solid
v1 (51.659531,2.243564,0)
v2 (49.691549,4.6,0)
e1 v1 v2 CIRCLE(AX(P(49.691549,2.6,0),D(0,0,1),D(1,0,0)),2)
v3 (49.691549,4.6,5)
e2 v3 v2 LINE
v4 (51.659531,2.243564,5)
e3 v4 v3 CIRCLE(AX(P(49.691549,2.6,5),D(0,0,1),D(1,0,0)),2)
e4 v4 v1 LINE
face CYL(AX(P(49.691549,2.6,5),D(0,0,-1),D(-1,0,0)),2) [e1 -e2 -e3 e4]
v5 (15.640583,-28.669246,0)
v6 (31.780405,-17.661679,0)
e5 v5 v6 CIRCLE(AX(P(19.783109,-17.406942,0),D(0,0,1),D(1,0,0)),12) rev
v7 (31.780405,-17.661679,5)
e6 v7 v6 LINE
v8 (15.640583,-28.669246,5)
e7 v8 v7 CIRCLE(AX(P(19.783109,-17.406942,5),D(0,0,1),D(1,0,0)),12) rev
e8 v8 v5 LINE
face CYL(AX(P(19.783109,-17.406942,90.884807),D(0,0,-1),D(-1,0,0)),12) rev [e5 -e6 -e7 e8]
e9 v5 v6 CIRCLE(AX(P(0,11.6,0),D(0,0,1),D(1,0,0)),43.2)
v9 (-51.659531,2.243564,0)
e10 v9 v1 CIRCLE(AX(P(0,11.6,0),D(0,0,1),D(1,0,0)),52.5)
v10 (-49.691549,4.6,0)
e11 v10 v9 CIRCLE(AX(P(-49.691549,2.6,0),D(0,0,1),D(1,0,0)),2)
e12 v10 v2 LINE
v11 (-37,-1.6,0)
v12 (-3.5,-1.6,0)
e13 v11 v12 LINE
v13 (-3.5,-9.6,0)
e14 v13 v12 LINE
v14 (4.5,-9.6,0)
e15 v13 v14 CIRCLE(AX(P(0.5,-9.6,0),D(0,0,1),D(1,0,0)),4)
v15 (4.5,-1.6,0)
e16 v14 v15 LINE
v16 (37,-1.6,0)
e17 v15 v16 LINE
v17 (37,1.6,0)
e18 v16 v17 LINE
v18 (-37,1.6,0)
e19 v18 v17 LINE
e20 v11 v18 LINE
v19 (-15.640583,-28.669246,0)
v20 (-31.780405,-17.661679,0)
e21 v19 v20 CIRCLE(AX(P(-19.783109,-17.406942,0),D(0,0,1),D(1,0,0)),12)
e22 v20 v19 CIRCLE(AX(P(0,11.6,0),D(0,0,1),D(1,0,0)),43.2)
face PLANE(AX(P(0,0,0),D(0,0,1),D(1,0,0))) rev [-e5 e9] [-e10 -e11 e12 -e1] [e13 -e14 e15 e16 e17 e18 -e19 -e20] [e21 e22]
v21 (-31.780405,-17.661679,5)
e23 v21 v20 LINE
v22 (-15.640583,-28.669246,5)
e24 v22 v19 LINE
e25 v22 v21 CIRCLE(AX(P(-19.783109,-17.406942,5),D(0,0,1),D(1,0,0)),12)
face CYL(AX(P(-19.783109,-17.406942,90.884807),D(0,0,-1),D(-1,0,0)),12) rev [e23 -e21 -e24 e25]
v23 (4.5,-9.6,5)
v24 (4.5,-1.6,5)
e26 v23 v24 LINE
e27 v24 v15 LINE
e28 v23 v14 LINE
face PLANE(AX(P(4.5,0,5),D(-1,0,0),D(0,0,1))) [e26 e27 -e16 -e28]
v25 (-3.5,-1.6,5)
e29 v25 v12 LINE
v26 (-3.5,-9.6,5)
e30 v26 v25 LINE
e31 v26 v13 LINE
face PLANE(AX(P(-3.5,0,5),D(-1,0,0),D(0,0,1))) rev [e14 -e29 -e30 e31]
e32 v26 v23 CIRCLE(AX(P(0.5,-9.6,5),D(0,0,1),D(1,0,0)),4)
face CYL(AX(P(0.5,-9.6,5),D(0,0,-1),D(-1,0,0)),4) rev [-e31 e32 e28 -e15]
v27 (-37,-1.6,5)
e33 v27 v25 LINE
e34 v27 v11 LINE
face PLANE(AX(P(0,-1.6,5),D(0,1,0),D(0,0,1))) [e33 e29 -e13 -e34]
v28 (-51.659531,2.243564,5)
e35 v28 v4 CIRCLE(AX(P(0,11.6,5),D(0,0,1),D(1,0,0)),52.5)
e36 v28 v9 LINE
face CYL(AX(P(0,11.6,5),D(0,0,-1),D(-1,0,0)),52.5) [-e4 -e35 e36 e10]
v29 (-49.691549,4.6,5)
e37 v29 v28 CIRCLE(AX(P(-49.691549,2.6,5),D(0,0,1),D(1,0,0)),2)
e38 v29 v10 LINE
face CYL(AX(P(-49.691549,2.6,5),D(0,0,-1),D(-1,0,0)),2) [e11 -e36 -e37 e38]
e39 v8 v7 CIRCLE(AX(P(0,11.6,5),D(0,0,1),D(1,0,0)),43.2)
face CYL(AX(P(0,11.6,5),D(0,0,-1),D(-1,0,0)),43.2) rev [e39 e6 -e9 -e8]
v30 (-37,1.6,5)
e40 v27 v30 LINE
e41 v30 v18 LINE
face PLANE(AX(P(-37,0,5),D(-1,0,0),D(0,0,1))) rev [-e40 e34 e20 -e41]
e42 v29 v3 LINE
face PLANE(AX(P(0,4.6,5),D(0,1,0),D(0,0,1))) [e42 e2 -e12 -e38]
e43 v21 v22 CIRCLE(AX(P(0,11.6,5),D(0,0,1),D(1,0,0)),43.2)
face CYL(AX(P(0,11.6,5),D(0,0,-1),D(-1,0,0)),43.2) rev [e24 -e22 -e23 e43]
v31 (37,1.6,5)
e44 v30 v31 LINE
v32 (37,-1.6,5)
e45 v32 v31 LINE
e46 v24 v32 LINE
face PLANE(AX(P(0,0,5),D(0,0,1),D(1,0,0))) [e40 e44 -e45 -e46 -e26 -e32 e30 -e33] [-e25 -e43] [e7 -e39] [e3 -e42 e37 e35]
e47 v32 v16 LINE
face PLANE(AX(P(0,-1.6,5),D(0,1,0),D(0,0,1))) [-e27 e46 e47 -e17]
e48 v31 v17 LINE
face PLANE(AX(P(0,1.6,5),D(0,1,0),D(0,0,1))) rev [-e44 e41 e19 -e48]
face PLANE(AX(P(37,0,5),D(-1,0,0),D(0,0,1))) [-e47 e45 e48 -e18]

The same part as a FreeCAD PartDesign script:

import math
import FreeCAD as App
import Part
import Sketcher
Q = App.Units.Quantity

doc = App.newDocument("Part")
params = doc.addObject("Spreadsheet::Sheet", "Params")
for row, (alias, value) in enumerate([
    ("sketch1_radius", "2 mm"),
    ("sketch1_radius2", "6 mm"),
    ("sketch1_radius3", "4 mm"),
    ("sketch1_radius4", "52.5 mm"),
    ("sketch1_radius5", "43.2 mm"),
    ("pad1_length", "5 mm"),
    ("sketch2_radius", "6 mm"),
    ("sketch2_radius2", "12 mm"),
    ("sketch2_radius3", "43.2 mm"),
    ("sketch2_height", "5 mm"),
    ("pad2_length", "5 mm"),
], start=1):
    params.set(f"A{row}", alias)
    params.set(f"B{row}", "=" + value)
    params.setAlias(f"B{row}", alias)

body = doc.addObject("PartDesign::Body", "Body")

# Sketch on XY plane
sketch1 = body.newObject("Sketcher::SketchObject", "Sketch")
sketch1.AttachmentSupport = (doc.getObject("XY_Plane"), [""])
sketch1.MapMode = "FlatFace"
sketch1.addGeometry(Part.ArcOfCircle(Part.Circle(App.Vector(0, 11.6, 0), App.Vector(0, 0, 1), 52.5), math.radians(-170), math.radians(-10)), False)
sketch1.addGeometry(Part.ArcOfCircle(Part.Circle(App.Vector(49.7, 2.6, 0), App.Vector(0, 0, 1), 2), math.radians(-10), math.radians(90)), False)
sketch1.addGeometry(Part.LineSegment(App.Vector(49.7, 4.6, 0), App.Vector(-49.7, 4.6, 0)), False)
sketch1.addGeometry(Part.ArcOfCircle(Part.Circle(App.Vector(-49.7, 2.6, 0), App.Vector(0, 0, 1), 2), math.radians(90), math.radians(190)), False)
sketch1.addGeometry(Part.LineSegment(App.Vector(-3.5, -14.1, 0), App.Vector(-3.5, -31.5, 0)), False)
sketch1.addGeometry(Part.ArcOfCircle(Part.Circle(App.Vector(0, 11.6, 0), App.Vector(0, 0, 1), 43.2), math.radians(-158), math.radians(-95)), False)
sketch1.addGeometry(Part.LineSegment(App.Vector(-40, -4.6, 0), App.Vector(-5.5, -4.6, 0)), False)
sketch1.addGeometry(Part.LineSegment(App.Vector(-5.5, -4.6, 0), App.Vector(-5.5, -9.6, 0)), False)
sketch1.addGeometry(Part.ArcOfCircle(Part.Circle(App.Vector(0.5, -9.6, 0), App.Vector(0, 0, 1), 6), math.radians(180), math.radians(228)), False)
sketch1.addGeometry(Part.LineSegment(App.Vector(6.5, -4.6, 0), App.Vector(40, -4.6, 0)), False)
sketch1.addGeometry(Part.ArcOfCircle(Part.Circle(App.Vector(0, 11.6, 0), App.Vector(0, 0, 1), 43.2), math.radians(-84), math.radians(-22)), False)
sketch1.addGeometry(Part.LineSegment(App.Vector(4.5, -31.4, 0), App.Vector(4.5, -14.1, 0)), False)
sketch1.addGeometry(Part.ArcOfCircle(Part.Circle(App.Vector(0.5, -9.6, 0), App.Vector(0, 0, 1), 6), math.radians(-48), math.radians(0)), False)
sketch1.addGeometry(Part.LineSegment(App.Vector(6.5, -9.6, 0), App.Vector(6.5, -4.6, 0)), False)
sketch1.addGeometry(Part.LineSegment(App.Vector(-3.5, -9.6, 0), App.Vector(-3.5, -1.6, 0)), False)
sketch1.addGeometry(Part.LineSegment(App.Vector(-3.5, -1.6, 0), App.Vector(-37, -1.6, 0)), False)
sketch1.addGeometry(Part.LineSegment(App.Vector(-37, -1.6, 0), App.Vector(-37, 1.6, 0)), False)
sketch1.addGeometry(Part.LineSegment(App.Vector(-37, 1.6, 0), App.Vector(37, 1.6, 0)), False)
sketch1.addGeometry(Part.LineSegment(App.Vector(37, 1.6, 0), App.Vector(37, -1.6, 0)), False)
sketch1.addGeometry(Part.LineSegment(App.Vector(37, -1.6, 0), App.Vector(4.5, -1.6, 0)), False)
sketch1.addGeometry(Part.LineSegment(App.Vector(4.5, -1.6, 0), App.Vector(4.5, -9.6, 0)), False)
sketch1.addGeometry(Part.ArcOfCircle(Part.Circle(App.Vector(0.5, -9.6, 0), App.Vector(0, 0, 1), 4), math.radians(180), math.radians(360)), False)
sketch1.addConstraint(Sketcher.Constraint("Tangent", 0, 2, 1, 1))
sketch1.addConstraint(Sketcher.Constraint("Tangent", 1, 2, 2, 1))
sketch1.addConstraint(Sketcher.Constraint("Tangent", 2, 2, 3, 1))
sketch1.addConstraint(Sketcher.Constraint("Tangent", 3, 2, 0, 1))
sketch1.addConstraint(Sketcher.Constraint("Coincident", 4, 2, 5, 2))
sketch1.addConstraint(Sketcher.Constraint("Coincident", 5, 1, 6, 1))
sketch1.addConstraint(Sketcher.Constraint("Coincident", 6, 2, 7, 1))
sketch1.addConstraint(Sketcher.Constraint("Tangent", 7, 2, 8, 1))
sketch1.addConstraint(Sketcher.Constraint("Coincident", 8, 2, 4, 1))
sketch1.addConstraint(Sketcher.Constraint("Coincident", 9, 2, 10, 2))
sketch1.addConstraint(Sketcher.Constraint("Coincident", 10, 1, 11, 1))
sketch1.addConstraint(Sketcher.Constraint("Coincident", 11, 2, 12, 1))
sketch1.addConstraint(Sketcher.Constraint("Tangent", 12, 2, 13, 1))
sketch1.addConstraint(Sketcher.Constraint("Coincident", 13, 2, 9, 1))
sketch1.addConstraint(Sketcher.Constraint("Coincident", 14, 2, 15, 1))
sketch1.addConstraint(Sketcher.Constraint("Coincident", 15, 2, 16, 1))
sketch1.addConstraint(Sketcher.Constraint("Coincident", 16, 2, 17, 1))
sketch1.addConstraint(Sketcher.Constraint("Coincident", 17, 2, 18, 1))
sketch1.addConstraint(Sketcher.Constraint("Coincident", 18, 2, 19, 1))
sketch1.addConstraint(Sketcher.Constraint("Coincident", 19, 2, 20, 1))
sketch1.addConstraint(Sketcher.Constraint("Tangent", 20, 2, 21, 2))
sketch1.addConstraint(Sketcher.Constraint("Tangent", 21, 1, 14, 1))
sketch1.addConstraint(Sketcher.Constraint("Horizontal", 2))
sketch1.addConstraint(Sketcher.Constraint("Vertical", 4))
sketch1.addConstraint(Sketcher.Constraint("Horizontal", 6))
sketch1.addConstraint(Sketcher.Constraint("Vertical", 7))
sketch1.addConstraint(Sketcher.Constraint("Horizontal", 9))
sketch1.addConstraint(Sketcher.Constraint("Vertical", 11))
sketch1.addConstraint(Sketcher.Constraint("Vertical", 13))
sketch1.addConstraint(Sketcher.Constraint("Vertical", 14))
sketch1.addConstraint(Sketcher.Constraint("Horizontal", 15))
sketch1.addConstraint(Sketcher.Constraint("Vertical", 16))
sketch1.addConstraint(Sketcher.Constraint("Horizontal", 17))
sketch1.addConstraint(Sketcher.Constraint("Vertical", 18))
sketch1.addConstraint(Sketcher.Constraint("Horizontal", 19))
sketch1.addConstraint(Sketcher.Constraint("Vertical", 20))
sketch1.addConstraint(Sketcher.Constraint("Coincident", 5, 3, 0, 3))
sketch1.addConstraint(Sketcher.Constraint("Coincident", 10, 3, 0, 3))
sketch1.addConstraint(Sketcher.Constraint("Coincident", 12, 3, 8, 3))
sketch1.addConstraint(Sketcher.Constraint("Coincident", 21, 3, 8, 3))
sketch1.addConstraint(Sketcher.Constraint("Equal", 1, 3))
sketch1.addConstraint(Sketcher.Constraint("Equal", 5, 10))
sketch1.addConstraint(Sketcher.Constraint("Equal", 8, 12))
sketch1.addConstraint(Sketcher.Constraint("Symmetric", 15, 2, 17, 2, -1, 1))
sketch1.addConstraint(Sketcher.Constraint("Symmetric", 5, 1, 9, 2, -2))
sketch1.addConstraint(Sketcher.Constraint("Horizontal", 8, 2, 11, 2))
sketch1.addConstraint(Sketcher.Constraint("Horizontal", 15, 2, 18, 2))
sketch1.addConstraint(Sketcher.Constraint("Vertical", 8, 2, 14, 2))
sketch1.addConstraint(Sketcher.Constraint("Radius", 1, Q("2 mm")))
sketch1.addConstraint(Sketcher.Constraint("Radius", 8, Q("6 mm")))
sketch1.addConstraint(Sketcher.Constraint("Radius", 21, Q("4 mm")))
sketch1.addConstraint(Sketcher.Constraint("Radius", 0, Q("52.5 mm")))
sketch1.addConstraint(Sketcher.Constraint("Radius", 5, Q("43.2 mm")))
sketch1.addConstraint(Sketcher.Constraint("DistanceX", 17, 1, 17, 2, Q("74 mm")))
sketch1.addConstraint(Sketcher.Constraint("DistanceY", 7, 2, 7, 1, Q("5 mm")))
sketch1.addConstraint(Sketcher.Constraint("DistanceY", 14, 1, 14, 2, Q("8 mm")))
sketch1.addConstraint(Sketcher.Constraint("DistanceX", 15, 2, 15, 1, Q("33.5 mm")))
sketch1.addConstraint(Sketcher.Constraint("DistanceY", 16, 1, 16, 2, Q("3.2 mm")))
sketch1.addConstraint(Sketcher.Constraint("DistanceY", 1, 3, 0, 3, Q("9 mm")))
sketch1.addConstraint(Sketcher.Constraint("DistanceY", 16, 2, 3, 3, Q("1 mm")))
sketch1.setExpression("Constraints[48]", "Params.sketch1_radius")
sketch1.setExpression("Constraints[49]", "Params.sketch1_radius2")
sketch1.setExpression("Constraints[50]", "Params.sketch1_radius3")
sketch1.setExpression("Constraints[51]", "Params.sketch1_radius4")
sketch1.setExpression("Constraints[52]", "Params.sketch1_radius5")
pad1 = body.newObject("PartDesign::Pad", "Pad")
pad1.Profile = sketch1
pad1.setExpression("Length", "Params.pad1_length")

# Sketch on XY plane
sketch2 = body.newObject("Sketcher::SketchObject", "Sketch001")
sketch2.AttachmentSupport = (doc.getObject("XY_Plane"), [""])
sketch2.MapMode = "FlatFace"
sketch2.addGeometry(Part.LineSegment(App.Vector(40, -4.6, 0), App.Vector(6.5, -4.6, 0)), False)
sketch2.addGeometry(Part.LineSegment(App.Vector(6.5, -4.6, 0), App.Vector(6.5, -9.6, 0)), False)
sketch2.addGeometry(Part.ArcOfCircle(Part.Circle(App.Vector(0.5, -9.6, 0), App.Vector(0, 0, 1), 6), math.radians(-48), math.radians(0)), False)
sketch2.addGeometry(Part.LineSegment(App.Vector(4.5, -14.1, 0), App.Vector(4.5, -31.4, 0)), False)
sketch2.addGeometry(Part.ArcOfCircle(Part.Circle(App.Vector(0, 11.6, 0), App.Vector(0, 0, 1), 43.2), math.radians(-84.02), math.radians(-68.77)), False)
sketch2.addGeometry(Part.ArcOfCircle(Part.Circle(App.Vector(19.8, -17.4, 0), App.Vector(0, 0, 1), 12), math.radians(-1), math.radians(250)), False)
sketch2.addGeometry(Part.ArcOfCircle(Part.Circle(App.Vector(0, 11.6, 0), App.Vector(0, 0, 1), 43.2), math.radians(-43), math.radians(-22)), False)
sketch2.addGeometry(Part.LineSegment(App.Vector(-3.5, -31.5, 0), App.Vector(-3.5, -14.1, 0)), False)
sketch2.addGeometry(Part.ArcOfCircle(Part.Circle(App.Vector(0.5, -9.6, 0), App.Vector(0, 0, 1), 6), math.radians(180), math.radians(228)), False)
sketch2.addGeometry(Part.LineSegment(App.Vector(-5.5, -9.6, 0), App.Vector(-5.5, -4.6, 0)), False)
sketch2.addGeometry(Part.LineSegment(App.Vector(-5.5, -4.6, 0), App.Vector(-40, -4.6, 0)), False)
sketch2.addGeometry(Part.ArcOfCircle(Part.Circle(App.Vector(0, 11.6, 0), App.Vector(0, 0, 1), 43.2), math.radians(-158), math.radians(-137)), False)
sketch2.addGeometry(Part.ArcOfCircle(Part.Circle(App.Vector(-19.8, -17.4, 0), App.Vector(0, 0, 1), 12), math.radians(-70), math.radians(181)), False)
sketch2.addGeometry(Part.ArcOfCircle(Part.Circle(App.Vector(0, 11.6, 0), App.Vector(0, 0, 1), 43.2), math.radians(-111.23), math.radians(-94.65)), False)
sketch2.addConstraint(Sketcher.Constraint("Coincident", 0, 2, 1, 1))
sketch2.addConstraint(Sketcher.Constraint("Tangent", 1, 2, 2, 2))
sketch2.addConstraint(Sketcher.Constraint("Coincident", 2, 1, 3, 1))
sketch2.addConstraint(Sketcher.Constraint("Coincident", 3, 2, 4, 1))
sketch2.addConstraint(Sketcher.Constraint("Coincident", 4, 2, 5, 2))
sketch2.addConstraint(Sketcher.Constraint("Coincident", 5, 1, 6, 1))
sketch2.addConstraint(Sketcher.Constraint("Coincident", 6, 2, 0, 1))
sketch2.addConstraint(Sketcher.Constraint("Coincident", 7, 2, 8, 2))
sketch2.addConstraint(Sketcher.Constraint("Tangent", 8, 1, 9, 1))
sketch2.addConstraint(Sketcher.Constraint("Coincident", 9, 2, 10, 1))
sketch2.addConstraint(Sketcher.Constraint("Coincident", 10, 2, 11, 1))
sketch2.addConstraint(Sketcher.Constraint("Coincident", 11, 2, 12, 2))
sketch2.addConstraint(Sketcher.Constraint("Coincident", 12, 1, 13, 1))
sketch2.addConstraint(Sketcher.Constraint("Coincident", 13, 2, 7, 1))
sketch2.addConstraint(Sketcher.Constraint("Horizontal", 0))
sketch2.addConstraint(Sketcher.Constraint("Vertical", 1))
sketch2.addConstraint(Sketcher.Constraint("Vertical", 3))
sketch2.addConstraint(Sketcher.Constraint("Vertical", 7))
sketch2.addConstraint(Sketcher.Constraint("Vertical", 9))
sketch2.addConstraint(Sketcher.Constraint("Horizontal", 10))
sketch2.addConstraint(Sketcher.Constraint("Coincident", 6, 3, 4, 3))
sketch2.addConstraint(Sketcher.Constraint("Coincident", 8, 3, 2, 3))
sketch2.addConstraint(Sketcher.Constraint("Coincident", 11, 3, 4, 3))
sketch2.addConstraint(Sketcher.Constraint("Coincident", 13, 3, 4, 3))
sketch2.addConstraint(Sketcher.Constraint("Equal", 4, 6))
sketch2.addConstraint(Sketcher.Constraint("Equal", 2, 8))
sketch2.addConstraint(Sketcher.Constraint("Equal", 6, 11))
sketch2.addConstraint(Sketcher.Constraint("Equal", 5, 12))
sketch2.addConstraint(Sketcher.Constraint("Equal", 11, 13))
sketch2.addConstraint(Sketcher.Constraint("Symmetric", 5, 3, 12, 3, -2))
sketch2.addConstraint(Sketcher.Constraint("Symmetric", 6, 2, 10, 2, -2))
sketch2.addConstraint(Sketcher.Constraint("Horizontal", 2, 1, 7, 2))
sketch2.addConstraint(Sketcher.Constraint("Radius", 2, Q("6 mm")))
sketch2.addConstraint(Sketcher.Constraint("Radius", 5, Q("12 mm")))
sketch2.addConstraint(Sketcher.Constraint("Radius", 4, Q("43.2 mm")))
sketch2.addConstraint(Sketcher.Constraint("DistanceY", 1, 2, 1, 1, Q("5 mm")))
sketch2.addConstraint(Sketcher.Constraint("DistanceX", 2, 1, 1, 2, Q("2 mm")))
sketch2.addConstraint(Sketcher.Constraint("DistanceX", -1, 1, 2, 3, Q("0.5 mm")))
sketch2.addConstraint(Sketcher.Constraint("DistanceY", 2, 3, -1, 1, Q("9.6 mm")))
sketch2.addConstraint(Sketcher.Constraint("DistanceY", -1, 1, 4, 3, Q("11.6 mm")))
sketch2.addConstraint(Sketcher.Constraint("DistanceX", -1, 1, 5, 3, Q("19.783109 mm")))
sketch2.addConstraint(Sketcher.Constraint("DistanceY", 3, 2, 4, 2, Q("2.69574 mm")))
sketch2.setExpression("Constraints[32]", "Params.sketch2_radius")
sketch2.setExpression("Constraints[33]", "Params.sketch2_radius2")
sketch2.setExpression("Constraints[34]", "Params.sketch2_radius3")
sketch2.setExpression("Constraints[35]", "Params.sketch2_height")
pad2 = body.newObject("PartDesign::Pad", "Pad001")
pad2.Profile = sketch2
pad2.setExpression("Length", "Params.pad2_length")

doc.recompute()
